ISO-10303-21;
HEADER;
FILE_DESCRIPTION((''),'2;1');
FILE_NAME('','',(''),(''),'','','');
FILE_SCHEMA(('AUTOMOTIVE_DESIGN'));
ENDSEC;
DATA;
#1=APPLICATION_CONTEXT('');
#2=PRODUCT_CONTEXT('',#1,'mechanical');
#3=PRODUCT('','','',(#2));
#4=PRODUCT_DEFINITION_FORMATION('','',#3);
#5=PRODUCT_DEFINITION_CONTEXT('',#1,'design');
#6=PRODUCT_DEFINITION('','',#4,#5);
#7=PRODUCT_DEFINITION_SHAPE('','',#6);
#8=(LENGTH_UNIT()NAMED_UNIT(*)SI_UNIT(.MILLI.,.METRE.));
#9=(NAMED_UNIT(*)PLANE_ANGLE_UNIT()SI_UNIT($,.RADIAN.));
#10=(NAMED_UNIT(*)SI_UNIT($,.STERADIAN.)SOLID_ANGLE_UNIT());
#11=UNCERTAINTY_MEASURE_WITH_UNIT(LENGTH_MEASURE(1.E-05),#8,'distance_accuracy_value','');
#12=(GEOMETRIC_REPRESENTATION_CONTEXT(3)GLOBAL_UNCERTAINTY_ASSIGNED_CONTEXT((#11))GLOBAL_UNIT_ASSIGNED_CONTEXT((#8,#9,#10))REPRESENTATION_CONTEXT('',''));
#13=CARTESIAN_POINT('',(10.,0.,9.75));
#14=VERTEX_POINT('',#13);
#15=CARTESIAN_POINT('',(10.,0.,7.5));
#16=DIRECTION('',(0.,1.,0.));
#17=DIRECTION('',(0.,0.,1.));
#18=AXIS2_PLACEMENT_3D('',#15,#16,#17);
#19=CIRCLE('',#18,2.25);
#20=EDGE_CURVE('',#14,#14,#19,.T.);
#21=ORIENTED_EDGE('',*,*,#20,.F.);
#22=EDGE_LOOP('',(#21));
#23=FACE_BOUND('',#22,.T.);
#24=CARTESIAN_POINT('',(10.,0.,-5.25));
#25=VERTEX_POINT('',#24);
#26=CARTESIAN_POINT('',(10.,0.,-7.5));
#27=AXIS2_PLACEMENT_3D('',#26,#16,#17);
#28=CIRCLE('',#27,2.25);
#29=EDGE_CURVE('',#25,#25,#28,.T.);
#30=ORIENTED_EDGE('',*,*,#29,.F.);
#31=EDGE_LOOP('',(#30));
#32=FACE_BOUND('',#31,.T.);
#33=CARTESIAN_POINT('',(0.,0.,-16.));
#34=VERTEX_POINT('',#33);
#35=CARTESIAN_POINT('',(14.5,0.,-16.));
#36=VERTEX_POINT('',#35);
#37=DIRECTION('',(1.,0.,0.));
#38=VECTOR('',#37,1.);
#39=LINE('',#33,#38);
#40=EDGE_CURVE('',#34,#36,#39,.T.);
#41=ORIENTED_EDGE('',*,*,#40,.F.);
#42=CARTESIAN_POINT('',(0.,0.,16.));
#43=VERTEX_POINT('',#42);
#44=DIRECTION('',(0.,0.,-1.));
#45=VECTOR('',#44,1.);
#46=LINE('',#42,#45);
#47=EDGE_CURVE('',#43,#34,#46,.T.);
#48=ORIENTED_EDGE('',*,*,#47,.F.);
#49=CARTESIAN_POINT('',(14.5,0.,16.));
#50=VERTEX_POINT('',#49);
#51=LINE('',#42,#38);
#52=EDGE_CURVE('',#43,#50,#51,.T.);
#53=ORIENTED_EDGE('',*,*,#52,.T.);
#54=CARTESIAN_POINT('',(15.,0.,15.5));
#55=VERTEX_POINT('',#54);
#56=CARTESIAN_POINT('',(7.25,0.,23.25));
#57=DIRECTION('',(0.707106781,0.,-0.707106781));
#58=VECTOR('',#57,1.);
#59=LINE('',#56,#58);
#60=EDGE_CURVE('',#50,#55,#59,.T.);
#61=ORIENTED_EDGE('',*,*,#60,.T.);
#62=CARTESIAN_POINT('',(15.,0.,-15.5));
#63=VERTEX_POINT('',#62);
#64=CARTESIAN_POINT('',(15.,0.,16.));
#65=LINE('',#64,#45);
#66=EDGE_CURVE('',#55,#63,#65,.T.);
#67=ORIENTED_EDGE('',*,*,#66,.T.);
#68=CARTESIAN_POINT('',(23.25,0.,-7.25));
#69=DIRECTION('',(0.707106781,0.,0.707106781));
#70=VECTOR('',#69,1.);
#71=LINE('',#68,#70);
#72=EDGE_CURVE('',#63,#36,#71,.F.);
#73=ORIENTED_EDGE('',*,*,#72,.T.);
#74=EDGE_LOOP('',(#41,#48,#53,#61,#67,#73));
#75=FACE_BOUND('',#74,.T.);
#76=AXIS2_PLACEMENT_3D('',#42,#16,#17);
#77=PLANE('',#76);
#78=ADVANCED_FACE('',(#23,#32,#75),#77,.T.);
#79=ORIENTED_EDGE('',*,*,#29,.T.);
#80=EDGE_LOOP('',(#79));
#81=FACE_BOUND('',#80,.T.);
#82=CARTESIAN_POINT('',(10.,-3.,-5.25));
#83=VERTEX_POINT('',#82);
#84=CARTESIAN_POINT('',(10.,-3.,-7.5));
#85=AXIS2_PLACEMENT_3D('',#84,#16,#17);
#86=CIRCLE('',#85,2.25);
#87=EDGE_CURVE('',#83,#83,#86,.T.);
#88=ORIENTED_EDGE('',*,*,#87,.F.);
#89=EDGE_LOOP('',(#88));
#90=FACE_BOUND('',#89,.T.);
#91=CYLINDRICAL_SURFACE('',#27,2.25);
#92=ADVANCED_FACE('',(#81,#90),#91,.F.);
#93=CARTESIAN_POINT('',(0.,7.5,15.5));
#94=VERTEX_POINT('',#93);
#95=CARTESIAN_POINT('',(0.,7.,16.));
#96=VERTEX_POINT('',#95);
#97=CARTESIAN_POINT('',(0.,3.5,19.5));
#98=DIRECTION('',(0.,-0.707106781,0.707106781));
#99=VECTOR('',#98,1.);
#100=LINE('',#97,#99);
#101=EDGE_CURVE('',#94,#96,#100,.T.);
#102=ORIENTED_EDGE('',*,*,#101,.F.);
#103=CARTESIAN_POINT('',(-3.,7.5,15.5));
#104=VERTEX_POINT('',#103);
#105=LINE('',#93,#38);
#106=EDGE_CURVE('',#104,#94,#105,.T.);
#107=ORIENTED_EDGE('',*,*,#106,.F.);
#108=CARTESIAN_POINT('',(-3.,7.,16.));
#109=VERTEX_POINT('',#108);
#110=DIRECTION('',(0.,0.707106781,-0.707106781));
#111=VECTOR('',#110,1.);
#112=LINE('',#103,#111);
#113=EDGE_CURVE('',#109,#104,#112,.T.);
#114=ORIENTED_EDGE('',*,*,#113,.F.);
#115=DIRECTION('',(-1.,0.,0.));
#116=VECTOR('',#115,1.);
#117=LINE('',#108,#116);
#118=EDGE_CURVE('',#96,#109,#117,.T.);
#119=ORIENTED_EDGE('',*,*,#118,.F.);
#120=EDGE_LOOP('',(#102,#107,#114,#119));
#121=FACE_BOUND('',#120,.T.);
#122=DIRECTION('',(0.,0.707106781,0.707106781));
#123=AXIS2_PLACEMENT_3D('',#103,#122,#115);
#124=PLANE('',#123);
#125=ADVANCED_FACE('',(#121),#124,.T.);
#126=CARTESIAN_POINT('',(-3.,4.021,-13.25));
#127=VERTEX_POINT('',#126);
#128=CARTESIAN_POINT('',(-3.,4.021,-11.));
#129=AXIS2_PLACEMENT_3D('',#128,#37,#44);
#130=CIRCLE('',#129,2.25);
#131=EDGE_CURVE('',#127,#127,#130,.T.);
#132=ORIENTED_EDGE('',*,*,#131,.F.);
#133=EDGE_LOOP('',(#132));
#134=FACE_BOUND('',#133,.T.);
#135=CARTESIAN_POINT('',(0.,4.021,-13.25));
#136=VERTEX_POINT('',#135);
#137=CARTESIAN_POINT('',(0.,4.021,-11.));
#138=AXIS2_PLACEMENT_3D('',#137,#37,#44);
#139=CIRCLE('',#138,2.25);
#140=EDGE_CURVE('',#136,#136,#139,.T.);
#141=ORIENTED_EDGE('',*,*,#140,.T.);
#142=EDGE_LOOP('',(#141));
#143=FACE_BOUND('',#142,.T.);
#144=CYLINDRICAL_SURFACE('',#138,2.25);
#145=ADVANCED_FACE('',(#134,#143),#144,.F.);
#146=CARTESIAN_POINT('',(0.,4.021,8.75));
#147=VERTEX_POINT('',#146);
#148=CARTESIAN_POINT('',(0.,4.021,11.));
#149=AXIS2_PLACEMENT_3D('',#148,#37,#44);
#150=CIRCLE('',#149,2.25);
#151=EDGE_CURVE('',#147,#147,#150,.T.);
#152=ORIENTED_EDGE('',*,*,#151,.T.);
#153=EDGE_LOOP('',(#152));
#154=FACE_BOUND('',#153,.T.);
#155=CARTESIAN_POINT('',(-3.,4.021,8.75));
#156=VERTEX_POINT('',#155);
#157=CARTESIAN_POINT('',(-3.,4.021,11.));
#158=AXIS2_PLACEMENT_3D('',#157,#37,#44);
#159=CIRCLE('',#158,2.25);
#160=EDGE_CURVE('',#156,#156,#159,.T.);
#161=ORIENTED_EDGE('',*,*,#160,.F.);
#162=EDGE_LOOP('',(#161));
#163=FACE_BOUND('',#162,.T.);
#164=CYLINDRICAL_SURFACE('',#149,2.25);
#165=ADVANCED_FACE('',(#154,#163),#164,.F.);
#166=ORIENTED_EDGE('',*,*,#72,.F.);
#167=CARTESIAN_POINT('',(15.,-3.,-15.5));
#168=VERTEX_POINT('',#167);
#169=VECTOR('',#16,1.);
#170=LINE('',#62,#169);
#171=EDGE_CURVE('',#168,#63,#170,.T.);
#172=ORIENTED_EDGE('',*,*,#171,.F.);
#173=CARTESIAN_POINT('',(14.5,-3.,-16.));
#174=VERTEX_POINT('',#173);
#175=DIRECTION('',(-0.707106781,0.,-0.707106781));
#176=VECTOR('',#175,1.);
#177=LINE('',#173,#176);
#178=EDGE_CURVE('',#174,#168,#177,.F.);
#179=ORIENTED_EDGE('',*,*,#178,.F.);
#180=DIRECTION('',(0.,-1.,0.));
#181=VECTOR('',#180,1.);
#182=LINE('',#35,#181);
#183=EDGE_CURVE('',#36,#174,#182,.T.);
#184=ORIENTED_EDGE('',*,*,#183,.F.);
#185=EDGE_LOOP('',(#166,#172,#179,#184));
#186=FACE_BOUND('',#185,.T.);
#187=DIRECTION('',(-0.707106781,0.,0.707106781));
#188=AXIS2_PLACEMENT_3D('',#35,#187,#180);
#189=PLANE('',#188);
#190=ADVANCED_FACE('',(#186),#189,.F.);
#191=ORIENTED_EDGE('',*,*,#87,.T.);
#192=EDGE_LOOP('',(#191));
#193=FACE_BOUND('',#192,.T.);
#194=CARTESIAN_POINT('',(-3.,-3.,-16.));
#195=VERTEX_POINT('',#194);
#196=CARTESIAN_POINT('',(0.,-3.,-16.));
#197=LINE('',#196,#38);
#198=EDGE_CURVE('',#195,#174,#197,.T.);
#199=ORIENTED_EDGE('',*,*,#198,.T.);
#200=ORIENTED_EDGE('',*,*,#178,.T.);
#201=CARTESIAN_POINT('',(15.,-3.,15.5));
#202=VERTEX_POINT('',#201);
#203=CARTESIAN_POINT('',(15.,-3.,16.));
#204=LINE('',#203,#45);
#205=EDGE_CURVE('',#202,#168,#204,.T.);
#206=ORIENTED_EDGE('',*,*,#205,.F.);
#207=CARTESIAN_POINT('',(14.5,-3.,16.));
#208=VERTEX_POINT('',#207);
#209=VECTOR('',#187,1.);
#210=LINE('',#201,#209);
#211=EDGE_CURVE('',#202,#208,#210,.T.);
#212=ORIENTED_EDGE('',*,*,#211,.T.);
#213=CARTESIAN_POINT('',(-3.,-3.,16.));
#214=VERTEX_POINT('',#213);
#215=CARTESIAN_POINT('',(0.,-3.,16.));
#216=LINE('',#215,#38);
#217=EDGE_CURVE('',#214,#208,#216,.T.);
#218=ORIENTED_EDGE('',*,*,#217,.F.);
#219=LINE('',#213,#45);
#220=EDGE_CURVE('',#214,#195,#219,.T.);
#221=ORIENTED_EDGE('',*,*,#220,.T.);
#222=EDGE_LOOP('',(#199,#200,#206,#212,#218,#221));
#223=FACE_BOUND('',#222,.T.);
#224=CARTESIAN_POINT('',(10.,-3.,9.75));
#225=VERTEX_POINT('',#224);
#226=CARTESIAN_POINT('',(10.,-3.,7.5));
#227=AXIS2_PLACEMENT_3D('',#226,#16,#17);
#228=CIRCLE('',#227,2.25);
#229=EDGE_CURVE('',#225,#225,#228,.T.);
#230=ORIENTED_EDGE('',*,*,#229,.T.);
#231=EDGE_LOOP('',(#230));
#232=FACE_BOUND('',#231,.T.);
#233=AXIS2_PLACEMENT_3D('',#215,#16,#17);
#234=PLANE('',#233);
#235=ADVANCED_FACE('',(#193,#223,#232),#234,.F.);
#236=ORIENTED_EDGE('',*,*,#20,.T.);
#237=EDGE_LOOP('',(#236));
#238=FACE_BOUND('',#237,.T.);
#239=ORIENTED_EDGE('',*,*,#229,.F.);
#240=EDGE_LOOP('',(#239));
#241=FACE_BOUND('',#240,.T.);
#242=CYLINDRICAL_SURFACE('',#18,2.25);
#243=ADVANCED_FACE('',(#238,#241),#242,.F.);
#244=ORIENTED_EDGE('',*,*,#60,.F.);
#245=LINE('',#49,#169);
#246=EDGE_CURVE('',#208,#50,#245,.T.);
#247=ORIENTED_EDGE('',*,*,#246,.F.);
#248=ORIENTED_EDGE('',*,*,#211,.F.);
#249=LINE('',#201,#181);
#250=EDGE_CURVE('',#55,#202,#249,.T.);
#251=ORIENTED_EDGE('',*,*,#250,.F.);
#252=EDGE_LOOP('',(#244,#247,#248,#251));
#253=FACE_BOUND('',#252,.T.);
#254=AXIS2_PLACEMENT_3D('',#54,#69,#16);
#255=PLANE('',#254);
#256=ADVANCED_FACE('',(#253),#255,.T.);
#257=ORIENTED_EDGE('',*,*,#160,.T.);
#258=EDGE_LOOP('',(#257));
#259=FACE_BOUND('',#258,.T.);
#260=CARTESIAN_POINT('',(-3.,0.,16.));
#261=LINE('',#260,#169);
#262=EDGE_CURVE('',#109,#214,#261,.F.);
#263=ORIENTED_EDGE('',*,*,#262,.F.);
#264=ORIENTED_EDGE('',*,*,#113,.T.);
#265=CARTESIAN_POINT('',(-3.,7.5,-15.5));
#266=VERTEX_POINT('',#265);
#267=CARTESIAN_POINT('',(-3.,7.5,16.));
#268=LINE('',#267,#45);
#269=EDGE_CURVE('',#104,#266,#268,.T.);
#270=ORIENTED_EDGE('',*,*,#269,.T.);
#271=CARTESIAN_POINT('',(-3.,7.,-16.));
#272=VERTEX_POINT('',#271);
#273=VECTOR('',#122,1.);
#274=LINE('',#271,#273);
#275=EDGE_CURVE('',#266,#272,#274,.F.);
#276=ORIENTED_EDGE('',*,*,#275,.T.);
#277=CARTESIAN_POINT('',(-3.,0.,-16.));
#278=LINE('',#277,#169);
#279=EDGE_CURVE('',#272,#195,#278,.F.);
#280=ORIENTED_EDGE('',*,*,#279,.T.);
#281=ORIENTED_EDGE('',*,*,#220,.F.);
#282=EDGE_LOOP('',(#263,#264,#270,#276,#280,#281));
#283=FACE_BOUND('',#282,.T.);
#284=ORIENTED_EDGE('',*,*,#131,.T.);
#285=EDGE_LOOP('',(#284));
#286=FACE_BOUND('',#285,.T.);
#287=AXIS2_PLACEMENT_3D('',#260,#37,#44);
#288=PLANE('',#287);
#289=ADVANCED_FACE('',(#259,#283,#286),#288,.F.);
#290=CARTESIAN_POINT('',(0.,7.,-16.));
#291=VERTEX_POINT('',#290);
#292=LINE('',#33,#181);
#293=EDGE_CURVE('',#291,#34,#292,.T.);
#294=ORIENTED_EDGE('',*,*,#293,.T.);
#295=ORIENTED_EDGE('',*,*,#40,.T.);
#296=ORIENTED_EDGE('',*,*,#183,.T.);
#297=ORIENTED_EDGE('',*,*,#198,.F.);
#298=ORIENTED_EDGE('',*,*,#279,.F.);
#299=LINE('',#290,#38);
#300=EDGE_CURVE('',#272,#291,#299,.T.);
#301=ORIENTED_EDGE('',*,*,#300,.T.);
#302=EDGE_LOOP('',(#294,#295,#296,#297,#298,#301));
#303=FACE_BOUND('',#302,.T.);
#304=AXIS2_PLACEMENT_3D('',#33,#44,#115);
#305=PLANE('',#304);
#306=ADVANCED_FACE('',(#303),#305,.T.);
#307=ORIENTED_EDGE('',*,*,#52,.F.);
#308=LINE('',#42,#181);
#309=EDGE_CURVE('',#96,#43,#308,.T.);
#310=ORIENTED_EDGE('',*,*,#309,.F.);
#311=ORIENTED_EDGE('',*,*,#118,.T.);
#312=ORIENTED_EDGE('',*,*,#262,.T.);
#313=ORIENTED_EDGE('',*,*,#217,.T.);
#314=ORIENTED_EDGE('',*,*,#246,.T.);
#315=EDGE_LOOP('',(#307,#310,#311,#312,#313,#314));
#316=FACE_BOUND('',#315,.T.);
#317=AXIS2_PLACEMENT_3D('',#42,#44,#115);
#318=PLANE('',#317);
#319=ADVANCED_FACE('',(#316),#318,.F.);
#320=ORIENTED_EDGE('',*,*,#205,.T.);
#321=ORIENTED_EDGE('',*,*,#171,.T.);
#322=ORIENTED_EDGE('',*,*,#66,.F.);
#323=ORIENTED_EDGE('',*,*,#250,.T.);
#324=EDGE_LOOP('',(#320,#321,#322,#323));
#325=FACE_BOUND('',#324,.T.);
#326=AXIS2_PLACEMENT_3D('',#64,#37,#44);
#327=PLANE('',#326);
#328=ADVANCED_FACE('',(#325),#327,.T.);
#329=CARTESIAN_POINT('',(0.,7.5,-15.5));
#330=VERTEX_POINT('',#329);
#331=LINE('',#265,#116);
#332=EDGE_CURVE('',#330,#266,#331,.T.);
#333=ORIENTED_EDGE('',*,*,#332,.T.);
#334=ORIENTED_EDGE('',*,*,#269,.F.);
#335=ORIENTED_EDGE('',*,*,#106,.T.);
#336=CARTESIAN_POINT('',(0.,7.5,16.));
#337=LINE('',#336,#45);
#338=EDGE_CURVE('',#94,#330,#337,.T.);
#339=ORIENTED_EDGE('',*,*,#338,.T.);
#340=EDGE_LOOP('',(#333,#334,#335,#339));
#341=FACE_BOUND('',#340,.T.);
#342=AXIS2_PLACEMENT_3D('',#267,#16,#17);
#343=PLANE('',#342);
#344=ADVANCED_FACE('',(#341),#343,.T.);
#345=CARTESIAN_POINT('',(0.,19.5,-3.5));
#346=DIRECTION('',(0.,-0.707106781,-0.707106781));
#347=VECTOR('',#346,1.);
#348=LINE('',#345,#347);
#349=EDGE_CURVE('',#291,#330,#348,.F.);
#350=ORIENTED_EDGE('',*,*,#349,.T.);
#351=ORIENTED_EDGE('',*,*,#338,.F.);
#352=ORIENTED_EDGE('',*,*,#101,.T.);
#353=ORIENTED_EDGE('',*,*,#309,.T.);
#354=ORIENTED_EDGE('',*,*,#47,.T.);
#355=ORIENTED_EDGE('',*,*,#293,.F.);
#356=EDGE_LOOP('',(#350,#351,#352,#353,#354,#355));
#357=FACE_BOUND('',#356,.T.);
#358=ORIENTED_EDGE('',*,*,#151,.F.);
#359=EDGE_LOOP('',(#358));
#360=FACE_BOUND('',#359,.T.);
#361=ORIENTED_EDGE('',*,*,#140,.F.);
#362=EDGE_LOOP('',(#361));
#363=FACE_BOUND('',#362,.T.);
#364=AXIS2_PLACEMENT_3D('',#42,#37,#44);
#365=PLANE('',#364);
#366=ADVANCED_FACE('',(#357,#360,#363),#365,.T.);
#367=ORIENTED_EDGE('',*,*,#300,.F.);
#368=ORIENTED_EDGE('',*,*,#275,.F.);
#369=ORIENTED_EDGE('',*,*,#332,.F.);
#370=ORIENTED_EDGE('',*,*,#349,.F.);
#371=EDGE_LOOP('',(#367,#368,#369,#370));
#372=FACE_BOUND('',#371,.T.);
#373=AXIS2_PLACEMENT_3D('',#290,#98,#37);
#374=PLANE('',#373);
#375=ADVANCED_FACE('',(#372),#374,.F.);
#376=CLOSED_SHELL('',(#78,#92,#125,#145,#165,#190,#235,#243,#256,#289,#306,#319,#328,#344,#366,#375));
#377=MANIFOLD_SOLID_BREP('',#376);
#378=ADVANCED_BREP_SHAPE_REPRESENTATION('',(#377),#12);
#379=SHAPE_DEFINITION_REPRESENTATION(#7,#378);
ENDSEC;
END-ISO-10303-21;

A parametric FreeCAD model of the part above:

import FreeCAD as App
import Part
import Sketcher
from FreeCAD import Vector


def edges_at(feature, points):
    """Names of the edges that pass closest to the given points."""
    edges = feature.Shape.Edges
    near = lambda p: min(range(len(edges)), key=lambda i: edges[i].distToShape(Part.Vertex(*p))[0])
    return sorted({f"Edge{near(p) + 1}" for p in points})

doc = App.newDocument("Part")
body = doc.addObject("PartDesign::Body", "Body")

sketch1 = body.newObject("Sketcher::SketchObject", "Sketch")
sketch1.AttachmentSupport = (doc.getObject("XY_Plane"), [""])
sketch1.MapMode = "FlatFace"
sketch1.addGeometry([
    Part.LineSegment(Vector(15, 0, 0), Vector(0, 0, 0)),
    Part.LineSegment(Vector(0, 0, 0), Vector(0, 7.5, 0)),
    Part.LineSegment(Vector(0, 7.5, 0), Vector(-3, 7.5, 0)),
    Part.LineSegment(Vector(-3, 7.5, 0), Vector(-3, -3, 0)),
    Part.LineSegment(Vector(-3, -3, 0), Vector(15, -3, 0)),
    Part.LineSegment(Vector(15, -3, 0), Vector(15, 0, 0)),
], False)
sketch1.addConstraint([
    Sketcher.Constraint("Coincident", 0, 2, 1, 1),
    Sketcher.Constraint("Coincident", 1, 2, 2, 1),
    Sketcher.Constraint("Coincident", 2, 2, 3, 1),
    Sketcher.Constraint("Coincident", 3, 2, 4, 1),
    Sketcher.Constraint("Coincident", 4, 2, 5, 1),
    Sketcher.Constraint("Coincident", 5, 2, 0, 1),
    Sketcher.Constraint("Horizontal", 0),
    Sketcher.Constraint("Vertical", 1),
    Sketcher.Constraint("Horizontal", 2),
    Sketcher.Constraint("Vertical", 3),
    Sketcher.Constraint("Horizontal", 4),
    Sketcher.Constraint("Vertical", 5),
    Sketcher.Constraint("Coincident", 0, 2, -1, 1),
    Sketcher.Constraint("Equal", 2, 5),
    Sketcher.Constraint("DistanceX", 0, 2, 0, 1, 15.0),
    Sketcher.Constraint("DistanceX", 2, 2, 2, 1, 3.0),
    Sketcher.Constraint("DistanceY", 1, 1, 1, 2, 7.5),
])
pad1 = body.newObject("PartDesign::Pad", "Pad")
pad1.Profile = sketch1
pad1.Length = 32
pad1.Midplane = True

sketch2 = body.newObject("Sketcher::SketchObject", "Sketch001")
sketch2.AttachmentSupport = (doc.getObject("YZ_Plane"), [""])
sketch2.MapMode = "FlatFace"
sketch2.addGeometry([
    Part.Circle(Vector(4, -11, 0), Vector(0, 0, 1), 2.2),
    Part.Circle(Vector(4, 11, 0), Vector(0, 0, 1), 2.2),
], False)
sketch2.addConstraint([
    Sketcher.Constraint("Equal", 0, 1),
    Sketcher.Constraint("Symmetric", 0, 3, 1, 3, -1),
    Sketcher.Constraint("Diameter", 0, 4.5),
    Sketcher.Constraint("DistanceY", 0, 3, -1, 1, 11.0),
    Sketcher.Constraint("DistanceX", -1, 1, 0, 3, 4.021),
])
doc.recompute()
hole = body.newObject("PartDesign::Hole", "Hole")
hole.Profile = sketch2
hole.ThreadType = "None"
hole.Diameter = 4.5
hole.DepthType = "Dimension"
hole.Depth = 5
hole.DrillPoint = "Angled"
hole.DrillPointAngle = 118

sketch3 = body.newObject("Sketcher::SketchObject", "Sketch002")
sketch3.AttachmentSupport = (doc.getObject("XZ_Plane"), [""])
sketch3.MapMode = "FlatFace"
sketch3.addGeometry([
    Part.Circle(Vector(10, 7.5, 0), Vector(0, 0, 1), 2.2),
    Part.Circle(Vector(10, -7.5, 0), Vector(0, 0, 1), 2.2),
], False)
sketch3.addConstraint([
    Sketcher.Constraint("Equal", 0, 1),
    Sketcher.Constraint("Symmetric", 0, 3, 1, 3, -1),
    Sketcher.Constraint("Diameter", 0, 4.5),
    Sketcher.Constraint("DistanceX", -1, 1, 0, 3, 10.0),
    Sketcher.Constraint("DistanceY", 1, 3, 0, 3, 15.0),
])
doc.recompute()
hole2 = body.newObject("PartDesign::Hole", "Hole001")
hole2.Profile = sketch3
hole2.ThreadType = "None"
hole2.Diameter = 4.5
hole2.DepthType = "Dimension"
hole2.Depth = 5
hole2.DrillPoint = "Angled"
hole2.DrillPointAngle = 118
hole2.Reversed = True
doc.recompute()

chamfer = body.newObject("PartDesign::Chamfer", "Chamfer")
chamfer.Base = (hole2, edges_at(hole2, [
    (-1.5, 7.5, 16),
    (-1.5, 7.5, -16),
    (15, -1.5, -16),
    (15, -1.5, 16),
]))
chamfer.Size = 0.5

doc.recompute()
